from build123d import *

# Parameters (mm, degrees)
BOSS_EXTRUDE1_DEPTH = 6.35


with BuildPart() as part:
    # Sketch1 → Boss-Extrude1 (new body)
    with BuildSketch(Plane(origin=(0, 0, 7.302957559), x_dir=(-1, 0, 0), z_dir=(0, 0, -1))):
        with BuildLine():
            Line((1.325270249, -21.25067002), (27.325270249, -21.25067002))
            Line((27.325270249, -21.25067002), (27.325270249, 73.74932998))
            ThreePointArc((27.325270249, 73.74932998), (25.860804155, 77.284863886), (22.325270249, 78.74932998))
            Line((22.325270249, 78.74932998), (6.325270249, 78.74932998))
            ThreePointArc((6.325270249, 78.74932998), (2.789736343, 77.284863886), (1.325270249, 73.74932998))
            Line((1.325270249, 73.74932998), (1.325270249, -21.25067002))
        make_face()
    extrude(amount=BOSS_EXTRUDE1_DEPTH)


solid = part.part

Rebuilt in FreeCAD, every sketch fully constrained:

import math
import FreeCAD as App
import Part
import Sketcher
Q = App.Units.Quantity

doc = App.newDocument("Part")
body = doc.addObject("PartDesign::Body", "Body")

# Sketch on XY plane
sketch1 = body.newObject("Sketcher::SketchObject", "Sketch")
sketch1.AttachmentSupport = (doc.getObject("XY_Plane"), [""])
sketch1.MapMode = "FlatFace"
sketch1.AttachmentOffset = App.Placement(App.Vector(0, 0, 7.302958), App.Rotation())
sketch1.addGeometry([
    Part.LineSegment(App.Vector(-1.32527, -21.25067, 0), App.Vector(-27.32527, -21.25067, 0)),  # 0
    Part.LineSegment(App.Vector(-27.32527, -21.25067, 0), App.Vector(-27.32527, 73.74933, 0)),  # 1
    Part.ArcOfCircle(Part.Circle(App.Vector(-22.32527, 73.74933, 0), App.Vector(0, 0, 1), 5), math.radians(90), math.radians(180)),  # 2
    Part.LineSegment(App.Vector(-22.32527, 78.74933, 0), App.Vector(-6.32527, 78.74933, 0)),  # 3
    Part.ArcOfCircle(Part.Circle(App.Vector(-6.32527, 73.74933, 0), App.Vector(0, 0, 1), 5), math.radians(0), math.radians(90)),  # 4
    Part.LineSegment(App.Vector(-1.32527, 73.74933, 0), App.Vector(-1.32527, -21.25067, 0)),  # 5
], False)
sketch1.addConstraint([
    Sketcher.Constraint("Coincident", 0, 2, 1, 1),
    Sketcher.Constraint("Tangent", 1, 2, 2, 2),
    Sketcher.Constraint("Tangent", 2, 1, 3, 1),
    Sketcher.Constraint("Tangent", 3, 2, 4, 2),
    Sketcher.Constraint("Tangent", 4, 1, 5, 1),
    Sketcher.Constraint("Coincident", 5, 2, 0, 1),
    Sketcher.Constraint("Horizontal", 0),
    Sketcher.Constraint("Vertical", 1),
    Sketcher.Constraint("Horizontal", 3),
    Sketcher.Constraint("Vertical", 5),
    Sketcher.Constraint("Equal", 2, 4),
    Sketcher.Constraint("Radius", 2, Q("5 mm")),
    Sketcher.Constraint("DistanceX", 0, 2, 0, 1, Q("26 mm")),
    Sketcher.Constraint("DistanceY", 1, 1, 1, 2, Q("95 mm")),
    Sketcher.Constraint("DistanceX", 2, 3, -1, 1, Q("22.32527 mm")),
    Sketcher.Constraint("DistanceY", -1, 1, 2, 3, Q("73.74933 mm")),
])
pad1 = body.newObject("PartDesign::Pad", "Pad")
pad1.Profile = sketch1
pad1.Length = 6.35
pad1.Reversed = True

doc.recompute()
